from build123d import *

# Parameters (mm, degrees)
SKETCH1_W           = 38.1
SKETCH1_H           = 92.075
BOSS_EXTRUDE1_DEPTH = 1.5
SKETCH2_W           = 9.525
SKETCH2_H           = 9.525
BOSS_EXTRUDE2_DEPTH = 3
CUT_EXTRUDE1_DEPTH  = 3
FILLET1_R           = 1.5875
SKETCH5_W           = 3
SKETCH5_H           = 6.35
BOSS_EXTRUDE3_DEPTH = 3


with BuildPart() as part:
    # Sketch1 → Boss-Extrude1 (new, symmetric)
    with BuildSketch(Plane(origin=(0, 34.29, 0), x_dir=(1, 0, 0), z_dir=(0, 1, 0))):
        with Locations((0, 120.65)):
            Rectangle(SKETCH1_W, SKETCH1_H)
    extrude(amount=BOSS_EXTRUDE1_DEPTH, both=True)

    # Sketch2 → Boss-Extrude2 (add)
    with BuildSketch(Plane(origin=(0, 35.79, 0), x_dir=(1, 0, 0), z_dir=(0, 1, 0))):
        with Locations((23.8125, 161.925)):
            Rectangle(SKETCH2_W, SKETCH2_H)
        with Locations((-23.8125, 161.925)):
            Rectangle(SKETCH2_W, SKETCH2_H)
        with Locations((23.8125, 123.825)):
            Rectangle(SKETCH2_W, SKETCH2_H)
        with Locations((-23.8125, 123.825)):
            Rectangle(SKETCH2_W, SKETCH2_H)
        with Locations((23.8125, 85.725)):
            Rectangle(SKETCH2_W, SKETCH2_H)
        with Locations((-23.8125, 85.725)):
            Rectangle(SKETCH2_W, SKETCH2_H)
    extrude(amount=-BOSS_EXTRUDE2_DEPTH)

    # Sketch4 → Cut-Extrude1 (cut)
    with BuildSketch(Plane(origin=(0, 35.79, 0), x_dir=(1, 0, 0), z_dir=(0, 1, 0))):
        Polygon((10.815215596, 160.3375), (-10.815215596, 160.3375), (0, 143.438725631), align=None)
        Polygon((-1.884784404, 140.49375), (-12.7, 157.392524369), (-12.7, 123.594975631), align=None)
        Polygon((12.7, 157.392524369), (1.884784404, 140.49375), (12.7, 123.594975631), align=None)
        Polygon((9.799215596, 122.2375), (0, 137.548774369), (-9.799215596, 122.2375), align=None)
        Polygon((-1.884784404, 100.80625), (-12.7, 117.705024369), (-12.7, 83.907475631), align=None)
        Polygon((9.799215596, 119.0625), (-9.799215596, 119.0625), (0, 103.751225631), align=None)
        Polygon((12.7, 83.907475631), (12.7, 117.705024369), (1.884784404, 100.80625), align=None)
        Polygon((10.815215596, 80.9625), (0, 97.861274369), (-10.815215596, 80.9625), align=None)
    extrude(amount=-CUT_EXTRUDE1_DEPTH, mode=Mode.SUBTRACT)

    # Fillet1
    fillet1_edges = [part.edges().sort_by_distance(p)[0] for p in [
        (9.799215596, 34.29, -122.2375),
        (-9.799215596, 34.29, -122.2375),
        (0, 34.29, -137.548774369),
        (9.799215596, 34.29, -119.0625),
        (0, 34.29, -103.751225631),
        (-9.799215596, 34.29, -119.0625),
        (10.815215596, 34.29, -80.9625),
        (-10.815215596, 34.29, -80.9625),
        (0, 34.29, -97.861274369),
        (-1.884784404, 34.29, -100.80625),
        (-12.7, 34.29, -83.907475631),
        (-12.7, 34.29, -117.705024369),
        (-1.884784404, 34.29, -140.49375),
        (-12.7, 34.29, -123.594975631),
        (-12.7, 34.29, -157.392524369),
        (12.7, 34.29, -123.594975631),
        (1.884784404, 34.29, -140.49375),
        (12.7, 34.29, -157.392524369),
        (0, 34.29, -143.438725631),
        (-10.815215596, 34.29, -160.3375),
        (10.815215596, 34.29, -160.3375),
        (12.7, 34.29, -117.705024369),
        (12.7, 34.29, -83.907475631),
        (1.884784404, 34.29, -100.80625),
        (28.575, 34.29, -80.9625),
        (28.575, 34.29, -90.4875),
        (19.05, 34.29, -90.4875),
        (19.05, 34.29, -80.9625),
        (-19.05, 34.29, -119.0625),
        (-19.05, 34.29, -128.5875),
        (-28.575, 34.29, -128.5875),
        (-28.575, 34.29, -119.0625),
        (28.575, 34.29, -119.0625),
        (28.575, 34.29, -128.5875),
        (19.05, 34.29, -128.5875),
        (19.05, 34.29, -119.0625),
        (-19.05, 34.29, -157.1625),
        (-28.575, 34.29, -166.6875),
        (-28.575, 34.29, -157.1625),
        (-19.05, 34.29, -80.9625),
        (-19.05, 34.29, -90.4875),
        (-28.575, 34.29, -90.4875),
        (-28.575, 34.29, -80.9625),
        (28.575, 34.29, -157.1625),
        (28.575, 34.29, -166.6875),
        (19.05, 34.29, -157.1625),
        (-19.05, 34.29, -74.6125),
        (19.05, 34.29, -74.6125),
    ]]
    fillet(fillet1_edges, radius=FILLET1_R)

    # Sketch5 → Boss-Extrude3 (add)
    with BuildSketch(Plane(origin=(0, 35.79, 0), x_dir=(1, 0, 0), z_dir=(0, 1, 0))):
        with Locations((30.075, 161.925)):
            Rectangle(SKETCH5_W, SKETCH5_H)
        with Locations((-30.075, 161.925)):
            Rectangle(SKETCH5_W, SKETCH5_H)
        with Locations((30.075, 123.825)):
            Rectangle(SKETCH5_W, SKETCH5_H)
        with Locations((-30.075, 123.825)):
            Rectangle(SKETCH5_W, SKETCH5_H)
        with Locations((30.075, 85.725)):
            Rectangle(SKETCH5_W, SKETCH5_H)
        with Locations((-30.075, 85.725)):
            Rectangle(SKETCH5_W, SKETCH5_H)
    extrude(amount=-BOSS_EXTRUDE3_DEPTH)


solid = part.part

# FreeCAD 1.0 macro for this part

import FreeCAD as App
import Part
import Sketcher

V = App.Vector
Q = App.Units.Quantity


def edges_at(feature, points):
    """Names of the edges that pass closest to the given points."""
    edges = feature.Shape.Edges
    near = lambda p: min(range(len(edges)), key=lambda i: edges[i].distToShape(Part.Vertex(*p))[0])
    return sorted({f"Edge{near(p) + 1}" for p in points})

doc = App.newDocument("Part")
body = doc.addObject("PartDesign::Body", "Body")

# Sketch on XZ plane
sketch1 = body.newObject("Sketcher::SketchObject", "Sketch")
sketch1.AttachmentSupport = (doc.getObject("XZ_Plane"), [""])
sketch1.MapMode = "FlatFace"
sketch1.AttachmentOffset = App.Placement(V(0, 0, -1.35 * 25.4), App.Rotation())
sketch1.addGeometry([
    Part.LineSegment(V(-19, -167, 0), V(-19, -75, 0)),
    Part.LineSegment(V(-19, -75, 0), V(19, -75, 0)),
    Part.LineSegment(V(19, -75, 0), V(19, -167, 0)),
    Part.LineSegment(V(19, -167, 0), V(-19, -167, 0)),
], False)
sketch1.addConstraint([
    Sketcher.Constraint("Coincident", 0, 2, 1, 1),
    Sketcher.Constraint("Coincident", 1, 2, 2, 1),
    Sketcher.Constraint("Coincident", 2, 2, 3, 1),
    Sketcher.Constraint("Coincident", 3, 2, 0, 1),
    Sketcher.Constraint("Vertical", 0),
    Sketcher.Constraint("Horizontal", 1),
    Sketcher.Constraint("Vertical", 2),
    Sketcher.Constraint("Horizontal", 3),
    Sketcher.Constraint("DistanceX", 1, 1, 1, 2, Q("1.5 in")),
    Sketcher.Constraint("DistanceY", 0, 1, 0, 2, Q("3.625 in")),
    Sketcher.Constraint("DistanceX", 0, 2, -1, 1, Q("0.75 in")),
    Sketcher.Constraint("DistanceY", 0, 2, -1, 1, Q("2.9375 in")),
])
pad1 = body.newObject("PartDesign::Pad", "Pad")
pad1.Profile = sketch1
pad1.Length = 3
pad1.Midplane = True

# Sketch on XZ plane
sketch2 = body.newObject("Sketcher::SketchObject", "Sketch001")
sketch2.AttachmentSupport = (doc.getObject("XZ_Plane"), [""])
sketch2.MapMode = "FlatFace"
sketch2.AttachmentOffset = App.Placement(V(0, 0, -35.79), App.Rotation())
sketch2.addGeometry([
    Part.LineSegment(V(19, -167, 0), V(19, -157, 0)),  # 0
    Part.LineSegment(V(19, -157, 0), V(29, -157, 0)),  # 1
    Part.LineSegment(V(29, -157, 0), V(29, -167, 0)),  # 2
    Part.LineSegment(V(29, -167, 0), V(19, -167, 0)),  # 3
    Part.LineSegment(V(-29, -167, 0), V(-29, -157, 0)),  # 4
    Part.LineSegment(V(-29, -157, 0), V(-19, -157, 0)),  # 5
    Part.LineSegment(V(-19, -157, 0), V(-19, -167, 0)),  # 6
    Part.LineSegment(V(-19, -167, 0), V(-29, -167, 0)),  # 7
    Part.LineSegment(V(19, -129, 0), V(19, -119, 0)),  # 8
    Part.LineSegment(V(19, -119, 0), V(29, -119, 0)),  # 9
    Part.LineSegment(V(29, -119, 0), V(29, -129, 0)),  # 10
    Part.LineSegment(V(29, -129, 0), V(19, -129, 0)),  # 11
    Part.LineSegment(V(-29, -129, 0), V(-29, -119, 0)),  # 12
    Part.LineSegment(V(-29, -119, 0), V(-19, -119, 0)),  # 13
    Part.LineSegment(V(-19, -119, 0), V(-19, -129, 0)),  # 14
    Part.LineSegment(V(-19, -129, 0), V(-29, -129, 0)),  # 15
    Part.LineSegment(V(19, -90, 0), V(19, -81, 0)),  # 16
    Part.LineSegment(V(19, -81, 0), V(29, -81, 0)),  # 17
    Part.LineSegment(V(29, -81, 0), V(29, -90, 0)),  # 18
    Part.LineSegment(V(29, -90, 0), V(19, -90, 0)),  # 19
    Part.LineSegment(V(-29, -90, 0), V(-29, -81, 0)),  # 20
    Part.LineSegment(V(-29, -81, 0), V(-19, -81, 0)),  # 21
    Part.LineSegment(V(-19, -81, 0), V(-19, -90, 0)),  # 22
    Part.LineSegment(V(-19, -90, 0), V(-29, -90, 0)),  # 23
], False)
sketch2.addConstraint([
    Sketcher.Constraint("Coincident", 0, 2, 1, 1),
    Sketcher.Constraint("Coincident", 1, 2, 2, 1),
    Sketcher.Constraint("Coincident", 2, 2, 3, 1),
    Sketcher.Constraint("Coincident", 3, 2, 0, 1),
    Sketcher.Constraint("Coincident", 4, 2, 5, 1),
    Sketcher.Constraint("Coincident", 5, 2, 6, 1),
    Sketcher.Constraint("Coincident", 6, 2, 7, 1),
    Sketcher.Constraint("Coincident", 7, 2, 4, 1),
    Sketcher.Constraint("Coincident", 8, 2, 9, 1),
    Sketcher.Constraint("Coincident", 9, 2, 10, 1),
    Sketcher.Constraint("Coincident", 10, 2, 11, 1),
    Sketcher.Constraint("Coincident", 11, 2, 8, 1),
    Sketcher.Constraint("Coincident", 12, 2, 13, 1),
    Sketcher.Constraint("Coincident", 13, 2, 14, 1),
    Sketcher.Constraint("Coincident", 14, 2, 15, 1),
    Sketcher.Constraint("Coincident", 15, 2, 12, 1),
    Sketcher.Constraint("Coincident", 16, 2, 17, 1),
    Sketcher.Constraint("Coincident", 17, 2, 18, 1),
    Sketcher.Constraint("Coincident", 18, 2, 19, 1),
    Sketcher.Constraint("Coincident", 19, 2, 16, 1),
    Sketcher.Constraint("Coincident", 20, 2, 21, 1),
    Sketcher.Constraint("Coincident", 21, 2, 22, 1),
    Sketcher.Constraint("Coincident", 22, 2, 23, 1),
    Sketcher.Constraint("Coincident", 23, 2, 20, 1),
    Sketcher.Constraint("Vertical", 0),
    Sketcher.Constraint("Horizontal", 1),
    Sketcher.Constraint("Vertical", 2),
    Sketcher.Constraint("Horizontal", 3),
    Sketcher.Constraint("Vertical", 4),
    Sketcher.Constraint("Horizontal", 5),
    Sketcher.Constraint("Vertical", 6),
    Sketcher.Constraint("Horizontal", 7),
    Sketcher.Constraint("Vertical", 8),
    Sketcher.Constraint("Horizontal", 9),
    Sketcher.Constraint("Vertical", 10),
    Sketcher.Constraint("Horizontal", 11),
    Sketcher.Constraint("Vertical", 12),
    Sketcher.Constraint("Horizontal", 13),
    Sketcher.Constraint("Vertical", 14),
    Sketcher.Constraint("Horizontal", 15),
    Sketcher.Constraint("Vertical", 16),
    Sketcher.Constraint("Horizontal", 17),
    Sketcher.Constraint("Vertical", 18),
    Sketcher.Constraint("Horizontal", 19),
    Sketcher.Constraint("Vertical", 20),
    Sketcher.Constraint("Horizontal", 21),
    Sketcher.Constraint("Vertical", 22),
    Sketcher.Constraint("Horizontal", 23),
    Sketcher.Constraint("Symmetric", 1, 2, 4, 2, -2),
    Sketcher.Constraint("Symmetric", 3, 2, 6, 2, -2),
    Sketcher.Constraint("Symmetric", 9, 2, 12, 2, -2),
    Sketcher.Constraint("Symmetric", 11, 2, 14, 2, -2),
    Sketcher.Constraint("Symmetric", 17, 2, 20, 2, -2),
    Sketcher.Constraint("Symmetric", 19, 2, 22, 2, -2),
    Sketcher.Constraint("Vertical", 3, 2, 8, 2),
    Sketcher.Constraint("Vertical", 2, 2, 9, 2),
    Sketcher.Constraint("Vertical", 11, 2, 16, 2),
    Sketcher.Constraint("Vertical", 10, 2, 17, 2),
    Sketcher.Constraint("Equal", 23, 0),
    Sketcher.Constraint("Equal", 6, 8),
    Sketcher.Constraint("Equal", 14, 16),
    Sketcher.Constraint("DistanceX", 5, 2, 0, 2, Q("1.5 in")),
    Sketcher.Constraint("DistanceY", 0, 2, 8, 2, Q("1.5 in")),
    Sketcher.Constraint("DistanceY", 8, 2, 16, 2, Q("1.5 in")),
    Sketcher.Constraint("DistanceX", 1, 1, 1, 2, Q("0.375 in")),
    Sketcher.Constraint("DistanceY", 0, 2, -1, 1, Q("6.1875 in")),
])
pad2 = body.newObject("PartDesign::Pad", "Pad001")
pad2.Profile = sketch2
pad2.Length = 3

# Sketch on XZ plane
sketch3 = body.newObject("Sketcher::SketchObject", "Sketch002")
sketch3.AttachmentSupport = (doc.getObject("XZ_Plane"), [""])
sketch3.MapMode = "FlatFace"
sketch3.AttachmentOffset = App.Placement(V(0, 0, -35.79), App.Rotation())
sketch3.addGeometry([
    Part.LineSegment(V(11, -160, 0), V(-11, -160, 0)),  # 0
    Part.LineSegment(V(-11, -160, 0), V(0, -143, 0)),  # 1
    Part.LineSegment(V(0, -143, 0), V(11, -160, 0)),  # 2
    Part.LineSegment(V(-2, -140, 0), V(-13, -157, 0)),  # 3
    Part.LineSegment(V(-13, -157, 0), V(-13, -124, 0)),  # 4
    Part.LineSegment(V(-13, -124, 0), V(-2, -140, 0)),  # 5
    Part.LineSegment(V(13, -157, 0), V(2, -140, 0)),  # 6
    Part.LineSegment(V(2, -140, 0), V(13, -124, 0)),  # 7
    Part.LineSegment(V(13, -124, 0), V(13, -157, 0)),  # 8
    Part.LineSegment(V(10, -122, 0), V(0, -138, 0)),  # 9
    Part.LineSegment(V(0, -138, 0), V(-10, -122, 0)),  # 10
    Part.LineSegment(V(-10, -122, 0), V(10, -122, 0)),  # 11
    Part.LineSegment(V(-2, -101, 0), V(-13, -118, 0)),  # 12
    Part.LineSegment(V(-13, -118, 0), V(-13, -84, 0)),  # 13
    Part.LineSegment(V(-13, -84, 0), V(-2, -101, 0)),  # 14
    Part.LineSegment(V(10, -119, 0), V(-10, -119, 0)),  # 15
    Part.LineSegment(V(-10, -119, 0), V(0, -104, 0)),  # 16
    Part.LineSegment(V(0, -104, 0), V(10, -119, 0)),  # 17
    Part.LineSegment(V(13, -84, 0), V(13, -118, 0)),  # 18
    Part.LineSegment(V(13, -118, 0), V(2, -101, 0)),  # 19
    Part.LineSegment(V(2, -101, 0), V(13, -84, 0)),  # 20
    Part.LineSegment(V(11, -81, 0), V(0, -98, 0)),  # 21
    Part.LineSegment(V(0, -98, 0), V(-11, -81, 0)),  # 22
    Part.LineSegment(V(-11, -81, 0), V(11, -81, 0)),  # 23
], False)
sketch3.addConstraint([
    Sketcher.Constraint("Coincident", 0, 2, 1, 1),
    Sketcher.Constraint("Coincident", 1, 2, 2, 1),
    Sketcher.Constraint("Coincident", 2, 2, 0, 1),
    Sketcher.Constraint("Coincident", 3, 2, 4, 1),
    Sketcher.Constraint("Coincident", 4, 2, 5, 1),
    Sketcher.Constraint("Coincident", 5, 2, 3, 1),
    Sketcher.Constraint("Coincident", 6, 2, 7, 1),
    Sketcher.Constraint("Coincident", 7, 2, 8, 1),
    Sketcher.Constraint("Coincident", 8, 2, 6, 1),
    Sketcher.Constraint("Coincident", 9, 2, 10, 1),
    Sketcher.Constraint("Coincident", 10, 2, 11, 1),
    Sketcher.Constraint("Coincident", 11, 2, 9, 1),
    Sketcher.Constraint("Coincident", 12, 2, 13, 1),
    Sketcher.Constraint("Coincident", 13, 2, 14, 1),
    Sketcher.Constraint("Coincident", 14, 2, 12, 1),
    Sketcher.Constraint("Coincident", 15, 2, 16, 1),
    Sketcher.Constraint("Coincident", 16, 2, 17, 1),
    Sketcher.Constraint("Coincident", 17, 2, 15, 1),
    Sketcher.Constraint("Coincident", 18, 2, 19, 1),
    Sketcher.Constraint("Coincident", 19, 2, 20, 1),
    Sketcher.Constraint("Coincident", 20, 2, 18, 1),
    Sketcher.Constraint("Coincident", 21, 2, 22, 1),
    Sketcher.Constraint("Coincident", 22, 2, 23, 1),
    Sketcher.Constraint("Coincident", 23, 2, 21, 1),
    Sketcher.Constraint("Horizontal", 0),
    Sketcher.Constraint("Vertical", 4),
    Sketcher.Constraint("Vertical", 8),
    Sketcher.Constraint("Horizontal", 11),
    Sketcher.Constraint("Vertical", 13),
    Sketcher.Constraint("Horizontal", 15),
    Sketcher.Constraint("Vertical", 18),
    Sketcher.Constraint("Horizontal", 23),
    Sketcher.Constraint("Symmetric", 5, 2, 6, 2, -2),
    Sketcher.Constraint("Symmetric", 4, 2, 7, 2, -2),
    Sketcher.Constraint("Symmetric", 12, 2, 18, 2, -2),
    Sketcher.Constraint("Symmetric", 14, 2, 19, 2, -2),
    Sketcher.Constraint("PointOnObject", 1, 2, -2),
    Sketcher.Constraint("PointOnObject", 9, 2, -2),
    Sketcher.Constraint("PointOnObject", 16, 2, -2),
    Sketcher.Constraint("PointOnObject", 21, 2, -2),
    Sketcher.Constraint("Parallel", 1, 3),
    Sketcher.Constraint("Parallel", 2, 5),
    Sketcher.Constraint("Parallel", 5, 6),
    Sketcher.Constraint("Parallel", 3, 7),
    Sketcher.Constraint("Parallel", 7, 9),
    Sketcher.Constraint("Parallel", 6, 10),
    Sketcher.Constraint("Parallel", 9, 12),
    Sketcher.Constraint("Parallel", 10, 14),
    Sketcher.Constraint("Parallel", 12, 16),
    Sketcher.Constraint("Parallel", 14, 17),
    Sketcher.Constraint("Parallel", 16, 20),
    Sketcher.Constraint("Parallel", 20, 21),
    Sketcher.Constraint("Parallel", 19, 22),
    Sketcher.Constraint("Vertical", 4, 2, 12, 2),
    Sketcher.Constraint("Vertical", 5, 2, 14, 2),
    Sketcher.Constraint("Vertical", 10, 2, 15, 2),
    Sketcher.Constraint("Vertical", 0, 2, 22, 2),
    Sketcher.Constraint("Equal", 2, 3),
    Sketcher.Constraint("DistanceX", 4, 2, 7, 2, Q("1 in")),
    Sketcher.Constraint("DistanceX", 10, 2, 6, 2, Q("0.46 in")),
    Sketcher.Constraint("DistanceY", 0, 2, -1, 1, Q("6.3125 in")),
    Sketcher.Constraint("DistanceY", 5, 2, -1, 1, Q("5.53125 in")),
    Sketcher.Constraint("DistanceY", 10, 2, -1, 1, Q("4.8125 in")),
    Sketcher.Constraint("DistanceY", 14, 2, -1, 1, Q("3.96875 in")),
    Sketcher.Constraint("DistanceY", 15, 2, -1, 1, Q("4.6875 in")),
    Sketcher.Constraint("DistanceY", 22, 2, -1, 1, Q("3.1875 in")),
    Sketcher.Constraint("DistanceY", 9, 2, 12, 2, Q("0.78125 in")),
    Sketcher.Constraint("DistanceX", 0, 2, 0, 1, Q("21.630431 mm")),
])
pocket1 = body.newObject("PartDesign::Pocket", "Pocket")
pocket1.Profile = sketch3
pocket1.Length = 3
pocket1.Reversed = True
doc.recompute()

fillet = body.newObject("PartDesign::Fillet", "Fillet")
fillet.Base = (pocket1, edges_at(pocket1, [
    (9.799, 34.29, -122.237),
    (-9.799, 34.29, -122.237),
    (0, 34.29, -137.549),
    (9.799, 34.29, -119.062),
    (0, 34.29, -103.751),
    (-9.799, 34.29, -119.062),
    (10.815, 34.29, -80.963),
    (-10.815, 34.29, -80.963),
    (0, 34.29, -97.861),
    (-1.885, 34.29, -100.806),
    (-12.7, 34.29, -83.907),
    (-12.7, 34.29, -117.705),
    (-1.885, 34.29, -140.494),
    (-12.7, 34.29, -123.595),
    (-12.7, 34.29, -157.393),
    (12.7, 34.29, -123.595),
    (1.885, 34.29, -140.494),
    (12.7, 34.29, -157.393),
    (0, 34.29, -143.439),
    (-10.815, 34.29, -160.338),
    (10.815, 34.29, -160.338),
    (12.7, 34.29, -117.705),
    (12.7, 34.29, -83.907),
    (1.885, 34.29, -100.806),
    (28.575, 34.29, -80.963),
    (28.575, 34.29, -90.487),
    (19.05, 34.29, -90.487),
    (19.05, 34.29, -80.963),
    (-19.05, 34.29, -119.062),
    (-19.05, 34.29, -128.588),
    (-28.575, 34.29, -128.588),
    (-28.575, 34.29, -119.062),
    (28.575, 34.29, -119.062),
    (28.575, 34.29, -128.588),
    (19.05, 34.29, -128.588),
    (19.05, 34.29, -119.062),
    (-19.05, 34.29, -157.162),
    (-28.575, 34.29, -166.688),
    (-28.575, 34.29, -157.162),
    (-19.05, 34.29, -80.963),
    (-19.05, 34.29, -90.487),
    (-28.575, 34.29, -90.487),
    (-28.575, 34.29, -80.963),
    (28.575, 34.29, -157.162),
    (28.575, 34.29, -166.688),
    (19.05, 34.29, -157.162),
    (-19.05, 34.29, -74.612),
    (19.05, 34.29, -74.612),
]))
fillet.Radius = Q("0.0625 in")

# Sketch on XZ plane
sketch4 = body.newObject("Sketcher::SketchObject", "Sketch003")
sketch4.AttachmentSupport = (doc.getObject("XZ_Plane"), [""])
sketch4.MapMode = "FlatFace"
sketch4.AttachmentOffset = App.Placement(V(0, 0, -35.79), App.Rotation())
sketch4.addGeometry([
    Part.LineSegment(V(28.6, -165.1, 0), V(28.6, -158.8, 0)),  # 0
    Part.LineSegment(V(28.6, -158.8, 0), V(31.6, -158.8, 0)),  # 1
    Part.LineSegment(V(31.6, -158.8, 0), V(31.6, -165.1, 0)),  # 2
    Part.LineSegment(V(31.6, -165.1, 0), V(28.6, -165.1, 0)),  # 3
    Part.LineSegment(V(-31.6, -165.1, 0), V(-31.6, -158.8, 0)),  # 4
    Part.LineSegment(V(-31.6, -158.8, 0), V(-28.6, -158.8, 0)),  # 5
    Part.LineSegment(V(-28.6, -158.8, 0), V(-28.6, -165.1, 0)),  # 6
    Part.LineSegment(V(-28.6, -165.1, 0), V(-31.6, -165.1, 0)),  # 7
    Part.LineSegment(V(28.6, -127, 0), V(28.6, -120.7, 0)),  # 8
    Part.LineSegment(V(28.6, -120.7, 0), V(31.6, -120.7, 0)),  # 9
    Part.LineSegment(V(31.6, -120.7, 0), V(31.6, -127, 0)),  # 10
    Part.LineSegment(V(31.6, -127, 0), V(28.6, -127, 0)),  # 11
    Part.LineSegment(V(-31.6, -127, 0), V(-31.6, -120.7, 0)),  # 12
    Part.LineSegment(V(-31.6, -120.7, 0), V(-28.6, -120.7, 0)),  # 13
    Part.LineSegment(V(-28.6, -120.7, 0), V(-28.6, -127, 0)),  # 14
    Part.LineSegment(V(-28.6, -127, 0), V(-31.6, -127, 0)),  # 15
    Part.LineSegment(V(28.6, -88.9, 0), V(28.6, -82.5, 0)),  # 16
    Part.LineSegment(V(28.6, -82.5, 0), V(31.6, -82.5, 0)),  # 17
    Part.LineSegment(V(31.6, -82.5, 0), V(31.6, -88.9, 0)),  # 18
    Part.LineSegment(V(31.6, -88.9, 0), V(28.6, -88.9, 0)),  # 19
    Part.LineSegment(V(-31.6, -88.9, 0), V(-31.6, -82.5, 0)),  # 20
    Part.LineSegment(V(-31.6, -82.5, 0), V(-28.6, -82.5, 0)),  # 21
    Part.LineSegment(V(-28.6, -82.5, 0), V(-28.6, -88.9, 0)),  # 22
    Part.LineSegment(V(-28.6, -88.9, 0), V(-31.6, -88.9, 0)),  # 23
], False)
sketch4.addConstraint([
    Sketcher.Constraint("Coincident", 0, 2, 1, 1),
    Sketcher.Constraint("Coincident", 1, 2, 2, 1),
    Sketcher.Constraint("Coincident", 2, 2, 3, 1),
    Sketcher.Constraint("Coincident", 3, 2, 0, 1),
    Sketcher.Constraint("Coincident", 4, 2, 5, 1),
    Sketcher.Constraint("Coincident", 5, 2, 6, 1),
    Sketcher.Constraint("Coincident", 6, 2, 7, 1),
    Sketcher.Constraint("Coincident", 7, 2, 4, 1),
    Sketcher.Constraint("Coincident", 8, 2, 9, 1),
    Sketcher.Constraint("Coincident", 9, 2, 10, 1),
    Sketcher.Constraint("Coincident", 10, 2, 11, 1),
    Sketcher.Constraint("Coincident", 11, 2, 8, 1),
    Sketcher.Constraint("Coincident", 12, 2, 13, 1),
    Sketcher.Constraint("Coincident", 13, 2, 14, 1),
    Sketcher.Constraint("Coincident", 14, 2, 15, 1),
    Sketcher.Constraint("Coincident", 15, 2, 12, 1),
    Sketcher.Constraint("Coincident", 16, 2, 17, 1),
    Sketcher.Constraint("Coincident", 17, 2, 18, 1),
    Sketcher.Constraint("Coincident", 18, 2, 19, 1),
    Sketcher.Constraint("Coincident", 19, 2, 16, 1),
    Sketcher.Constraint("Coincident", 20, 2, 21, 1),
    Sketcher.Constraint("Coincident", 21, 2, 22, 1),
    Sketcher.Constraint("Coincident", 22, 2, 23, 1),
    Sketcher.Constraint("Coincident", 23, 2, 20, 1),
    Sketcher.Constraint("Vertical", 0),
    Sketcher.Constraint("Horizontal", 1),
    Sketcher.Constraint("Vertical", 2),
    Sketcher.Constraint("Horizontal", 3),
    Sketcher.Constraint("Vertical", 4),
    Sketcher.Constraint("Horizontal", 5),
    Sketcher.Constraint("Vertical", 6),
    Sketcher.Constraint("Horizontal", 7),
    Sketcher.Constraint("Vertical", 8),
    Sketcher.Constraint("Horizontal", 9),
    Sketcher.Constraint("Vertical", 10),
    Sketcher.Constraint("Horizontal", 11),
    Sketcher.Constraint("Vertical", 12),
    Sketcher.Constraint("Horizontal", 13),
    Sketcher.Constraint("Vertical", 14),
    Sketcher.Constraint("Horizontal", 15),
    Sketcher.Constraint("Vertical", 16),
    Sketcher.Constraint("Horizontal", 17),
    Sketcher.Constraint("Vertical", 18),
    Sketcher.Constraint("Horizontal", 19),
    Sketcher.Constraint("Vertical", 20),
    Sketcher.Constraint("Horizontal", 21),
    Sketcher.Constraint("Vertical", 22),
    Sketcher.Constraint("Horizontal", 23),
    Sketcher.Constraint("Symmetric", 1, 2, 4, 2, -2),
    Sketcher.Constraint("Symmetric", 3, 2, 6, 2, -2),
    Sketcher.Constraint("Symmetric", 9, 2, 12, 2, -2),
    Sketcher.Constraint("Symmetric", 11, 2, 14, 2, -2),
    Sketcher.Constraint("Symmetric", 17, 2, 20, 2, -2),
    Sketcher.Constraint("Symmetric", 19, 2, 22, 2, -2),
    Sketcher.Constraint("Vertical", 3, 2, 8, 2),
    Sketcher.Constraint("Vertical", 2, 2, 9, 2),
    Sketcher.Constraint("Vertical", 11, 2, 16, 2),
    Sketcher.Constraint("Vertical", 10, 2, 17, 2),
    Sketcher.Constraint("Equal", 6, 8),
    Sketcher.Constraint("Equal", 14, 16),
    Sketcher.Constraint("DistanceY", 10, 2, -1, 1, Q("5 in")),
    Sketcher.Constraint("DistanceY", 0, 1, 0, 2, Q("0.25 in")),
    Sketcher.Constraint("DistanceY", 2, 2, -1, 1, Q("6.5 in")),
    Sketcher.Constraint("DistanceY", 18, 2, -1, 1, Q("3.5 in")),
    Sketcher.Constraint("DistanceX", 5, 2, 0, 2, Q("2.25 in")),
    Sketcher.Constraint("DistanceX", 1, 1, 1, 2, Q("3 mm")),
])
pad3 = body.newObject("PartDesign::Pad", "Pad002")
pad3.Profile = sketch4
pad3.Length = 3

doc.recompute()
